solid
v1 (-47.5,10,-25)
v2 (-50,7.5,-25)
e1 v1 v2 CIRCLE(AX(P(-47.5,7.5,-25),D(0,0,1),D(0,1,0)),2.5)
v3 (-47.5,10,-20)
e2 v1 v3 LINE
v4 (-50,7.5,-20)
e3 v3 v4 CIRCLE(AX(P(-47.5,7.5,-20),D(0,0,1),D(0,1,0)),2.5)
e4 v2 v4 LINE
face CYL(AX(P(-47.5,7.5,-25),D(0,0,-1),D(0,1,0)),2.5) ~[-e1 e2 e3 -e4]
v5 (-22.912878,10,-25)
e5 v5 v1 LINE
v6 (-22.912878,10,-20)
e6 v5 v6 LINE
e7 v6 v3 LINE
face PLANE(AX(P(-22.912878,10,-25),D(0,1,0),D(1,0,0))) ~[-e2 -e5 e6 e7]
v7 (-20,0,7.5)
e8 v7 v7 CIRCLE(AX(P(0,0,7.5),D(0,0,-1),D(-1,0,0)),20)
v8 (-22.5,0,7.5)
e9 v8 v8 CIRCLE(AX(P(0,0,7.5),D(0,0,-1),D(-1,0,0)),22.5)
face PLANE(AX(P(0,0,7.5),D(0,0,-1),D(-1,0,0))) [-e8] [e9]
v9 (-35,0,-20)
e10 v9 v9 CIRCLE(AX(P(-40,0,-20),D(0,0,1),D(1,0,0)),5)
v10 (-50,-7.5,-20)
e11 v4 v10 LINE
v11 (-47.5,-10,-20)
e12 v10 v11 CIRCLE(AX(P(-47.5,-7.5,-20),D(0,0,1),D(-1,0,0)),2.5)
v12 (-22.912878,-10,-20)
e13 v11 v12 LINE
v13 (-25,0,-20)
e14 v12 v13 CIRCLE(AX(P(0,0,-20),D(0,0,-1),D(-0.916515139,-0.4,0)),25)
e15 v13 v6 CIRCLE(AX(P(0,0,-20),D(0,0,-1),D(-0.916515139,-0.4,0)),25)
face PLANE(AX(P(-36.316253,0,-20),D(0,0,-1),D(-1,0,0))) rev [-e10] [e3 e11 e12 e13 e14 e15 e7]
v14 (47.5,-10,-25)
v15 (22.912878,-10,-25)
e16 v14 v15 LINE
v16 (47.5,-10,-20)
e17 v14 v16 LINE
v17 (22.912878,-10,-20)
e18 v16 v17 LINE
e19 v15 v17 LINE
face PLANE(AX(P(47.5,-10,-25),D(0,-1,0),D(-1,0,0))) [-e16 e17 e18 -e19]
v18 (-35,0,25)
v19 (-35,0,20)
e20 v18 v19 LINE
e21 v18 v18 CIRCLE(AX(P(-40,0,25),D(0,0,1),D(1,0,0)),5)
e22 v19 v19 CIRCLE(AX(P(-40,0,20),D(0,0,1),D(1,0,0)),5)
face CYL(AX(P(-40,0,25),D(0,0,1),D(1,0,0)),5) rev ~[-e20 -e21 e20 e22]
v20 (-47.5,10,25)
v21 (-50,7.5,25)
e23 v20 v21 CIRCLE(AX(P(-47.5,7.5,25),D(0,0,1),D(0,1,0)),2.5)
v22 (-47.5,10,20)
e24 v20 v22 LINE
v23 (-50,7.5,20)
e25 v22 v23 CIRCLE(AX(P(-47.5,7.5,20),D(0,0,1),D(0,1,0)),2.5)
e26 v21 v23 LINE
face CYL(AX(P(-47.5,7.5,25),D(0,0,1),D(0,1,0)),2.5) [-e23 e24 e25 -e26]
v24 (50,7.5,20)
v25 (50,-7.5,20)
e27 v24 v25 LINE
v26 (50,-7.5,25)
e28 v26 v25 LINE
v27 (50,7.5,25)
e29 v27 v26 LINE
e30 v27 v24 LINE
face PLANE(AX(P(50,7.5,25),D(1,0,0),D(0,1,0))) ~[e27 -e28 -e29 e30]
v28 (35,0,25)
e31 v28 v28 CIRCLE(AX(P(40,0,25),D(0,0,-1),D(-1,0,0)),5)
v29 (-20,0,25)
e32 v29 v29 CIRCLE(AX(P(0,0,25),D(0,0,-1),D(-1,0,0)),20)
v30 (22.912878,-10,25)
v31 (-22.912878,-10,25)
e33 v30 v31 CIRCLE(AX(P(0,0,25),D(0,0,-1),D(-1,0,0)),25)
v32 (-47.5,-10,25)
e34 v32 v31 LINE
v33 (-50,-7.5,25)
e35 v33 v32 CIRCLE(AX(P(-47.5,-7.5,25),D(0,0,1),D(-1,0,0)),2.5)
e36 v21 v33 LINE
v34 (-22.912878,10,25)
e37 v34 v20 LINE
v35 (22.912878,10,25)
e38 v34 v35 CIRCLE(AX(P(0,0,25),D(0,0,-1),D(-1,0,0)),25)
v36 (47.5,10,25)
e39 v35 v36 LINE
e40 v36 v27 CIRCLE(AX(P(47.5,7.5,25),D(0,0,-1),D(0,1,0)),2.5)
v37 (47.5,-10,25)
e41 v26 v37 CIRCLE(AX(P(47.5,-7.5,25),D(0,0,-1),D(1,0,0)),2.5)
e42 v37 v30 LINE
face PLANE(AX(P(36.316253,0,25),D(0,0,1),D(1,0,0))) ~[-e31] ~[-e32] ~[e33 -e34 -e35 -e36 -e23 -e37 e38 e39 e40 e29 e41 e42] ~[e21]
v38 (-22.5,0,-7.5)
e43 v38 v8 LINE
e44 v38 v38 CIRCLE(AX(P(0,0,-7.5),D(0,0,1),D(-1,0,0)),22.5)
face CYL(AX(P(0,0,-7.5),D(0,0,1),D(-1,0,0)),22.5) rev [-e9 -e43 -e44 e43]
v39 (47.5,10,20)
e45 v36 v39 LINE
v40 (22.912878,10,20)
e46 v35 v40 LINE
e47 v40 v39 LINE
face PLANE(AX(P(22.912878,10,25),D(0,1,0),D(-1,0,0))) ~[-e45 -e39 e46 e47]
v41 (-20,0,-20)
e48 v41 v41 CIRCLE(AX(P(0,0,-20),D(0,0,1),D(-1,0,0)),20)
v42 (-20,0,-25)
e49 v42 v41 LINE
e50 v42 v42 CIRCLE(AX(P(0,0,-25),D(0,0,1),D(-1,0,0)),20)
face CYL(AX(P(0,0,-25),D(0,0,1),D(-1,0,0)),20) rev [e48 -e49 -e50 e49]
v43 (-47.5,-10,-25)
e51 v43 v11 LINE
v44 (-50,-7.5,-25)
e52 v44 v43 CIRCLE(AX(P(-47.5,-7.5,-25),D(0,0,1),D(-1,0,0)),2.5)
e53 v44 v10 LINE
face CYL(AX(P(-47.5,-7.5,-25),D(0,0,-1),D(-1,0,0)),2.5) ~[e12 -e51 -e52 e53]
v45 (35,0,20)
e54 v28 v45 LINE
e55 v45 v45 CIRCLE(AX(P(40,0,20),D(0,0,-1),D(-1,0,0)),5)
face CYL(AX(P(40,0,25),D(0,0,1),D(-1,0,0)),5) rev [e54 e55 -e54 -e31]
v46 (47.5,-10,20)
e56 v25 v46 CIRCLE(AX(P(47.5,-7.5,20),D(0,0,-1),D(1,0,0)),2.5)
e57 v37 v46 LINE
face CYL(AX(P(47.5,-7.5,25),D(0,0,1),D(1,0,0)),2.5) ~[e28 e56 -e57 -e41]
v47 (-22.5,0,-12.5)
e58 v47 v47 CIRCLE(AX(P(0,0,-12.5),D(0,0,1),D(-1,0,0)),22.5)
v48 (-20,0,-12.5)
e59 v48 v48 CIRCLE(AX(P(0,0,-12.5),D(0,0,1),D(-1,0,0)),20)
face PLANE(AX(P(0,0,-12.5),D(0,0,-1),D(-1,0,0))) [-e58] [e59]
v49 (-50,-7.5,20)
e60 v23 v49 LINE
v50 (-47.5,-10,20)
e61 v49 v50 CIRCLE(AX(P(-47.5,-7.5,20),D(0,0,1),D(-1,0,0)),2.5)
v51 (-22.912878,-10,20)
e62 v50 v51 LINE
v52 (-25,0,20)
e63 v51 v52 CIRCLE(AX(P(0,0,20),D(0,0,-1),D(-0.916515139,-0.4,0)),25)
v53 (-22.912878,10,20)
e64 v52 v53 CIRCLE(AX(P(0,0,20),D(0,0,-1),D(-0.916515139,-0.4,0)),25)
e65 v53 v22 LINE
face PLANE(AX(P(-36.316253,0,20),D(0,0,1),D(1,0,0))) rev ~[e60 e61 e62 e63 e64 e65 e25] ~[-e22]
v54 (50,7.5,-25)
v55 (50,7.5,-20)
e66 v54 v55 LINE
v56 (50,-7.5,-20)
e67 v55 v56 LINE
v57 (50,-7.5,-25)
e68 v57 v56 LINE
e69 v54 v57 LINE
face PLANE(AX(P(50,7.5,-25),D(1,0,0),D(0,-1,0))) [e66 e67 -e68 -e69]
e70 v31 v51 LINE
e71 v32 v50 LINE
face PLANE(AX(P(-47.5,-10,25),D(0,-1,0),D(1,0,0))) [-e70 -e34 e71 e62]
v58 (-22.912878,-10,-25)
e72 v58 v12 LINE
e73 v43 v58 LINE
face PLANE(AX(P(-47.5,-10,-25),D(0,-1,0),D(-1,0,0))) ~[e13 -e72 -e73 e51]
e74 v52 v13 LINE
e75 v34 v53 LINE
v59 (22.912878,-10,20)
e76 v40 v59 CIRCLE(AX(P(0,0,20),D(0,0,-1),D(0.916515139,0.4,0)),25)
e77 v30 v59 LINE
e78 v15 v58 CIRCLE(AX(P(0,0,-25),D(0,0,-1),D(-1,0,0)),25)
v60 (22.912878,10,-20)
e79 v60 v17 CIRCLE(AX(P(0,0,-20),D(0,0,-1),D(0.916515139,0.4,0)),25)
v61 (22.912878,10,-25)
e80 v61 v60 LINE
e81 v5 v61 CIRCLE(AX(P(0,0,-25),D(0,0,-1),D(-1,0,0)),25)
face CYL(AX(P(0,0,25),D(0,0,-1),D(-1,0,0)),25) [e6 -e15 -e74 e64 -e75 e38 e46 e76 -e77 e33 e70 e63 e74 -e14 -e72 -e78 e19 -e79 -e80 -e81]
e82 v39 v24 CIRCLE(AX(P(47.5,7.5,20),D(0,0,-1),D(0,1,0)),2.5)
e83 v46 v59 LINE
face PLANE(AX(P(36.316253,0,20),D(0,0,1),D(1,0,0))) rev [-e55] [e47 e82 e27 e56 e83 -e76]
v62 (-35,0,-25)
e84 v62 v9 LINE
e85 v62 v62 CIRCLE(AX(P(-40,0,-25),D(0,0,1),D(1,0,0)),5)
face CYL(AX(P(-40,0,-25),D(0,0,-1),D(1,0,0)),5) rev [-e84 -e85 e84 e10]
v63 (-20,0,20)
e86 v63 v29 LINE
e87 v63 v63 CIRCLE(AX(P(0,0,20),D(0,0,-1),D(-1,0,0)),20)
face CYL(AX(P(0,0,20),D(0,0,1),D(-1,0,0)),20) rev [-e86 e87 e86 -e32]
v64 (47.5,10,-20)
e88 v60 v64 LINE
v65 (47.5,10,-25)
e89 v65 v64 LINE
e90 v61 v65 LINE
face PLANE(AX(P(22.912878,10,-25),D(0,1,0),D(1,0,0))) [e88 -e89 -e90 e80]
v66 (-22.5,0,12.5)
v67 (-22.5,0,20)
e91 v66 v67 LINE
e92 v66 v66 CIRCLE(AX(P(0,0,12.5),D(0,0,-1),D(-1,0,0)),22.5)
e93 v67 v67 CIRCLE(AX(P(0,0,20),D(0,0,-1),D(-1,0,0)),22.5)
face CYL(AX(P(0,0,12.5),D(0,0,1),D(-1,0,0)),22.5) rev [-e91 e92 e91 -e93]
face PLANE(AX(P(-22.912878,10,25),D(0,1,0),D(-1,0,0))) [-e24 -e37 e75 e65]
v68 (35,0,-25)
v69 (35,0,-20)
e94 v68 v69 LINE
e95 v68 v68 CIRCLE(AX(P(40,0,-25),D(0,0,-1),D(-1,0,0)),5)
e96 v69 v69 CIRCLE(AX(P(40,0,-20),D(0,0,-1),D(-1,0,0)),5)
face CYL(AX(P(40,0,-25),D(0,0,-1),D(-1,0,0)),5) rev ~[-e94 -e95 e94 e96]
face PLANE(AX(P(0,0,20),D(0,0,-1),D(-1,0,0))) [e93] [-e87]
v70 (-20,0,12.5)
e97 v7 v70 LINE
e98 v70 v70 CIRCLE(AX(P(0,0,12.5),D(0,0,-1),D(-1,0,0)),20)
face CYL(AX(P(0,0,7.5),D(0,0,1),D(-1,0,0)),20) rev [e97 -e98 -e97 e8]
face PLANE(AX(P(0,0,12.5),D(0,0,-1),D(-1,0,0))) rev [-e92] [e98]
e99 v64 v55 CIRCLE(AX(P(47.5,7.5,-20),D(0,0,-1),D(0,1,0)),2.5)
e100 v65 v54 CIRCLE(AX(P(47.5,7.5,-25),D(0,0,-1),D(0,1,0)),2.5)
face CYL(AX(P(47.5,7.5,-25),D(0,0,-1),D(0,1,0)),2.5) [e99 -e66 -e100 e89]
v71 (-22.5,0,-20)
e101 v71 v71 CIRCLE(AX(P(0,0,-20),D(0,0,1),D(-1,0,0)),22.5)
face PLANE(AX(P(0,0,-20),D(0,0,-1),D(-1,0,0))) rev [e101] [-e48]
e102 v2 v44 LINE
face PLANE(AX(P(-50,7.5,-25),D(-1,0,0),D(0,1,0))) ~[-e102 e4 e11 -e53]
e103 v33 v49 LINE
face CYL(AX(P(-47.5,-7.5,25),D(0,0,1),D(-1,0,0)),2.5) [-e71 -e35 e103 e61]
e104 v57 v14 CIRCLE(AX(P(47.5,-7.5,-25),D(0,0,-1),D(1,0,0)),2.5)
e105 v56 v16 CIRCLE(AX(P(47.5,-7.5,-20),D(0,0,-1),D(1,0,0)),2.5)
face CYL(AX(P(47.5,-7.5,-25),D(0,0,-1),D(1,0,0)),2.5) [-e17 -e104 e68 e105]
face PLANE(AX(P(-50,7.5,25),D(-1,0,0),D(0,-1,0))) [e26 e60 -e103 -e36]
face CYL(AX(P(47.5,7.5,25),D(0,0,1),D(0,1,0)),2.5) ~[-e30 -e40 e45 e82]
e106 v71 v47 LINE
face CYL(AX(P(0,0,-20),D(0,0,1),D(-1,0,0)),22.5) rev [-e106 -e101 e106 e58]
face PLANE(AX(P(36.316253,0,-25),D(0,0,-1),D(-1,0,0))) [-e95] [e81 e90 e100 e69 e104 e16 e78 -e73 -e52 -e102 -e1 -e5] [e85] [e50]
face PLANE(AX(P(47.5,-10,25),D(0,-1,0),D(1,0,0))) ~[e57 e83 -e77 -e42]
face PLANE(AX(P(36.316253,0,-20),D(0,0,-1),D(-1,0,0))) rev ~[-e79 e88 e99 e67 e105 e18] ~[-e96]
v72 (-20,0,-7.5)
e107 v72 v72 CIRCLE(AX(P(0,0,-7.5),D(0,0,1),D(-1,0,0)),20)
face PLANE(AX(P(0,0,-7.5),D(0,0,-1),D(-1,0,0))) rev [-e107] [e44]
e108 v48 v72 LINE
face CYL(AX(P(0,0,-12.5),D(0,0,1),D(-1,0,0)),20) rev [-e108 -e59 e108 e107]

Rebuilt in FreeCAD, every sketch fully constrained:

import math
import FreeCAD as App
import Part
import Sketcher

V = App.Vector

doc = App.newDocument("Part")
params = doc.addObject("Spreadsheet::Sheet", "Params")
for row, (alias, value) in enumerate([
    ("sketch1_width", "5 mm"),
    ("sketch1_height", "50 mm"),
    ("sketch1_height2", "15 mm"),
    ("sketch1_width2", "2.5 mm"),
    ("revolution_angle", "360 deg"),
    ("sketch2_diameter", "10 mm"),
    ("sketch2_radius", "25 mm"),
    ("sketch2_radius2", "2.5 mm"),
    ("sketch2_height", "15 mm"),
    ("pad1_length", "5 mm"),
], start=1):
    params.set(f"A{row}", alias)
    params.set(f"B{row}", "=" + value)
    params.setAlias(f"B{row}", alias)

body = doc.addObject("PartDesign::Body", "Body")

# Sketch on XZ plane
sketch1 = doc.addObject("Sketcher::SketchObject", "Sketch")
body.addObject(sketch1)
sketch1.AttachmentSupport = (doc.XZ_Plane, [""])
sketch1.MapMode = "FlatFace"
sketch1.addGeometry(Part.LineSegment(V(-25, 25, 0), V(-25, -25, 0)), False)
sketch1.addGeometry(Part.LineSegment(V(-25, -25, 0), V(-20, -25, 0)), False)
sketch1.addGeometry(Part.LineSegment(V(-20, -25, 0), V(-20, -20, 0)), False)
sketch1.addGeometry(Part.LineSegment(V(-20, -20, 0), V(-22.5, -20, 0)), False)
sketch1.addGeometry(Part.LineSegment(V(-22.5, -20, 0), V(-22.5, -12.5, 0)), False)
sketch1.addGeometry(Part.LineSegment(V(-22.5, -12.5, 0), V(-20, -12.5, 0)), False)
sketch1.addGeometry(Part.LineSegment(V(-20, -12.5, 0), V(-20, -7.5, 0)), False)
sketch1.addGeometry(Part.LineSegment(V(-20, -7.5, 0), V(-22.5, -7.5, 0)), False)
sketch1.addGeometry(Part.LineSegment(V(-22.5, -7.5, 0), V(-22.5, 7.5, 0)), False)
sketch1.addGeometry(Part.LineSegment(V(-22.5, 7.5, 0), V(-20, 7.5, 0)), False)
sketch1.addGeometry(Part.LineSegment(V(-20, 7.5, 0), V(-20, 12.5, 0)), False)
sketch1.addGeometry(Part.LineSegment(V(-20, 12.5, 0), V(-22.5, 12.5, 0)), False)
sketch1.addGeometry(Part.LineSegment(V(-22.5, 12.5, 0), V(-22.5, 20, 0)), False)
sketch1.addGeometry(Part.LineSegment(V(-22.5, 20, 0), V(-20, 20, 0)), False)
sketch1.addGeometry(Part.LineSegment(V(-20, 20, 0), V(-20, 25, 0)), False)
sketch1.addGeometry(Part.LineSegment(V(-20, 25, 0), V(-25, 25, 0)), False)
sketch1.addConstraint(Sketcher.Constraint("Coincident", 0, 2, 1, 1))
sketch1.addConstraint(Sketcher.Constraint("Coincident", 1, 2, 2, 1))
sketch1.addConstraint(Sketcher.Constraint("Coincident", 2, 2, 3, 1))
sketch1.addConstraint(Sketcher.Constraint("Coincident", 3, 2, 4, 1))
sketch1.addConstraint(Sketcher.Constraint("Coincident", 4, 2, 5, 1))
sketch1.addConstraint(Sketcher.Constraint("Coincident", 5, 2, 6, 1))
sketch1.addConstraint(Sketcher.Constraint("Coincident", 6, 2, 7, 1))
sketch1.addConstraint(Sketcher.Constraint("Coincident", 7, 2, 8, 1))
sketch1.addConstraint(Sketcher.Constraint("Coincident", 8, 2, 9, 1))
sketch1.addConstraint(Sketcher.Constraint("Coincident", 9, 2, 10, 1))
sketch1.addConstraint(Sketcher.Constraint("Coincident", 10, 2, 11, 1))
sketch1.addConstraint(Sketcher.Constraint("Coincident", 11, 2, 12, 1))
sketch1.addConstraint(Sketcher.Constraint("Coincident", 12, 2, 13, 1))
sketch1.addConstraint(Sketcher.Constraint("Coincident", 13, 2, 14, 1))
sketch1.addConstraint(Sketcher.Constraint("Coincident", 14, 2, 15, 1))
sketch1.addConstraint(Sketcher.Constraint("Coincident", 15, 2, 0, 1))
sketch1.addConstraint(Sketcher.Constraint("Vertical", 0))
sketch1.addConstraint(Sketcher.Constraint("Horizontal", 1))
sketch1.addConstraint(Sketcher.Constraint("Vertical", 2))
sketch1.addConstraint(Sketcher.Constraint("Horizontal", 3))
sketch1.addConstraint(Sketcher.Constraint("Vertical", 4))
sketch1.addConstraint(Sketcher.Constraint("Horizontal", 5))
sketch1.addConstraint(Sketcher.Constraint("Vertical", 6))
sketch1.addConstraint(Sketcher.Constraint("Horizontal", 7))
sketch1.addConstraint(Sketcher.Constraint("Vertical", 8))
sketch1.addConstraint(Sketcher.Constraint("Horizontal", 9))
sketch1.addConstraint(Sketcher.Constraint("Vertical", 10))
sketch1.addConstraint(Sketcher.Constraint("Horizontal", 11))
sketch1.addConstraint(Sketcher.Constraint("Vertical", 12))
sketch1.addConstraint(Sketcher.Constraint("Horizontal", 13))
sketch1.addConstraint(Sketcher.Constraint("Vertical", 14))
sketch1.addConstraint(Sketcher.Constraint("Horizontal", 15))
sketch1.addConstraint(Sketcher.Constraint("Symmetric", 6, 2, 9, 2, -1))
sketch1.addConstraint(Sketcher.Constraint("Symmetric", 4, 2, 11, 2, -1))
sketch1.addConstraint(Sketcher.Constraint("Symmetric", 2, 2, 13, 2, -1))
sketch1.addConstraint(Sketcher.Constraint("Vertical", 2, 2, 5, 2))
sketch1.addConstraint(Sketcher.Constraint("Vertical", 4, 2, 7, 2))
sketch1.addConstraint(Sketcher.Constraint("Equal", 15, 2))
sketch1.addConstraint(Sketcher.Constraint("Equal", 2, 6))
sketch1.addConstraint(Sketcher.Constraint("Equal", 10, 14))
sketch1.addConstraint(Sketcher.Constraint("DistanceX", 1, 1, 1, 2, 5.0))
sketch1.addConstraint(Sketcher.Constraint("DistanceY", 0, 2, 0, 1, 50.0))
sketch1.addConstraint(Sketcher.Constraint("DistanceY", 8, 1, 8, 2, 15.0))
sketch1.addConstraint(Sketcher.Constraint("DistanceX", 3, 2, 3, 1, 2.5))
sketch1.addConstraint(Sketcher.Constraint("DistanceX", 0, 2, -1, 1, 25.0))
sketch1.setExpression("Constraints[40]", "Params.sketch1_width")
sketch1.setExpression("Constraints[41]", "Params.sketch1_height")
sketch1.setExpression("Constraints[42]", "Params.sketch1_height2")
sketch1.setExpression("Constraints[43]", "Params.sketch1_width2")
revolution = doc.addObject("PartDesign::Revolution", "Revolution")
body.addObject(revolution)
revolution.Profile = sketch1
revolution.ReferenceAxis = (sketch1, ["V_Axis"])
revolution.setExpression("Angle", "Params.revolution_angle")

# Sketch on XY plane
sketch2 = doc.addObject("Sketcher::SketchObject", "Sketch001")
body.addObject(sketch2)
sketch2.AttachmentSupport = (doc.XY_Plane, [""])
sketch2.MapMode = "FlatFace"
sketch2.AttachmentOffset = App.Placement(V(0, 0, 25), App.Rotation())
sketch2.addGeometry(Part.ArcOfCircle(Part.Circle(V(0, 0, 0), V(0, 0, 1), 25), math.radians(156), math.radians(204)), False)
sketch2.addGeometry(Part.LineSegment(V(-22.9, 10, 0), V(-47.5, 10, 0)), False)
sketch2.addGeometry(Part.ArcOfCircle(Part.Circle(V(-47.5, 7.5, 0), V(0, 0, 1), 2.5), math.radians(90), math.radians(180)), False)
sketch2.addGeometry(Part.LineSegment(V(-50, 7.5, 0), V(-50, -7.5, 0)), False)
sketch2.addGeometry(Part.ArcOfCircle(Part.Circle(V(-47.5, -7.5, 0), V(0, 0, 1), 2.5), math.radians(180), math.radians(270)), False)
sketch2.addGeometry(Part.LineSegment(V(-47.5, -10, 0), V(-22.9, -10, 0)), False)
sketch2.addGeometry(Part.Circle(V(-40, 0, 0), V(0, 0, 1), 5), False)
sketch2.addConstraint(Sketcher.Constraint("Coincident", 0, 1, 1, 1))
sketch2.addConstraint(Sketcher.Constraint("Tangent", 1, 2, 2, 1))
sketch2.addConstraint(Sketcher.Constraint("Tangent", 2, 2, 3, 1))
sketch2.addConstraint(Sketcher.Constraint("Tangent", 3, 2, 4, 1))
sketch2.addConstraint(Sketcher.Constraint("Tangent", 4, 2, 5, 1))
sketch2.addConstraint(Sketcher.Constraint("Coincident", 5, 2, 0, 2))
sketch2.addConstraint(Sketcher.Constraint("Horizontal", 1))
sketch2.addConstraint(Sketcher.Constraint("Vertical", 3))
sketch2.addConstraint(Sketcher.Constraint("Horizontal", 5))
sketch2.addConstraint(Sketcher.Constraint("Coincident", 0, 3, -1, 1))
sketch2.addConstraint(Sketcher.Constraint("Equal", 2, 4))
sketch2.addConstraint(Sketcher.Constraint("PointOnObject", 6, 3, -1))
sketch2.addConstraint(Sketcher.Constraint("Vertical", 0, 1, 5, 2))
sketch2.addConstraint(Sketcher.Constraint("Diameter", 6, 10.0))
sketch2.addConstraint(Sketcher.Constraint("Radius", 0, 25.0))
sketch2.addConstraint(Sketcher.Constraint("Radius", 2, 2.5))
sketch2.addConstraint(Sketcher.Constraint("DistanceY", 3, 2, 3, 1, 15.0))
sketch2.addConstraint(Sketcher.Constraint("DistanceX", 6, 3, -1, 1, 40.0))
sketch2.addConstraint(Sketcher.Constraint("DistanceX", 2, 2, -1, 1, 50.0))
sketch2.setExpression("Constraints[13]", "Params.sketch2_diameter")
sketch2.setExpression("Constraints[14]", "Params.sketch2_radius")
sketch2.setExpression("Constraints[15]", "Params.sketch2_radius2")
sketch2.setExpression("Constraints[16]", "Params.sketch2_height")
pad1 = doc.addObject("PartDesign::Pad", "Pad")
body.addObject(pad1)
pad1.Profile = sketch2
pad1.setExpression("Length", "Params.pad1_length")
pad1.Reversed = True
body2 = doc.addObject("PartDesign::Body", "Body001")
doc.recompute()

body2.BaseFeature = body
doc.recompute()

mirroring = doc.addObject("Part::Mirroring", "Mirroring")
mirroring.Source = body
mirroring.Base = V(0, 0, 0)
mirroring.Normal = V(1, 0, 0)
body3 = doc.addObject("PartDesign::Body", "Body002")
body3.BaseFeature = mirroring
boolean = doc.addObject("PartDesign::Boolean", "Boolean")
body2.addObject(boolean)
boolean.Type = "Fuse"
boolean.addObjects([body3])
doc.recompute()
body4 = doc.addObject("PartDesign::Body", "Body003")
doc.recompute()

body4.BaseFeature = body2
doc.recompute()

mirroring2 = doc.addObject("Part::Mirroring", "Mirroring001")
mirroring2.Source = body2
mirroring2.Base = V(0, 0, 0)
mirroring2.Normal = V(0, 0, 1)
body5 = doc.addObject("PartDesign::Body", "Body004")
body5.BaseFeature = mirroring2
boolean2 = doc.addObject("PartDesign::Boolean", "Boolean001")
body4.addObject(boolean2)
boolean2.Type = "Fuse"
boolean2.addObjects([body5])
doc.recompute()
mirroring.Visibility = False
mirroring2.Visibility = False

doc.recompute()
